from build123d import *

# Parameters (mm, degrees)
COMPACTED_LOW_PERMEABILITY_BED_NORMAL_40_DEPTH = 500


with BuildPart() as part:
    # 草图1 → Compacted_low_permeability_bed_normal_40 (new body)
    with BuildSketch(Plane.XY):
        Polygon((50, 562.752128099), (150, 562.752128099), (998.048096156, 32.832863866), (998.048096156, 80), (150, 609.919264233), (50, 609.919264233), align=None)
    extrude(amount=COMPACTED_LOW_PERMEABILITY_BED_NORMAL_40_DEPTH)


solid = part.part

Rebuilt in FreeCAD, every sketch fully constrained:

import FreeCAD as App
import Part
import Sketcher

V = App.Vector
Q = App.Units.Quantity

doc = App.newDocument("Part")
body = doc.addObject("PartDesign::Body", "Body")

# Sketch on XY plane
sketch1 = doc.addObject("Sketcher::SketchObject", "Sketch")
body.addObject(sketch1)
sketch1.AttachmentSupport = (doc.XY_Plane, [""])
sketch1.MapMode = "FlatFace"
sketch1.addGeometry([
    Part.LineSegment(V(50, 563, 0), V(150, 563, 0)),  # 0
    Part.LineSegment(V(150, 563, 0), V(998, 33, 0)),  # 1
    Part.LineSegment(V(998, 33, 0), V(998, 80, 0)),  # 2
    Part.LineSegment(V(998, 80, 0), V(150, 610, 0)),  # 3
    Part.LineSegment(V(150, 610, 0), V(50, 610, 0)),  # 4
    Part.LineSegment(V(50, 610, 0), V(50, 563, 0)),  # 5
], False)
sketch1.addConstraint([
    Sketcher.Constraint("Coincident", 0, 2, 1, 1),
    Sketcher.Constraint("Coincident", 1, 2, 2, 1),
    Sketcher.Constraint("Coincident", 2, 2, 3, 1),
    Sketcher.Constraint("Coincident", 3, 2, 4, 1),
    Sketcher.Constraint("Coincident", 4, 2, 5, 1),
    Sketcher.Constraint("Coincident", 5, 2, 0, 1),
    Sketcher.Constraint("Horizontal", 0),
    Sketcher.Constraint("Vertical", 2),
    Sketcher.Constraint("Horizontal", 4),
    Sketcher.Constraint("Vertical", 5),
    Sketcher.Constraint("Parallel", 1, 3),
    Sketcher.Constraint("Vertical", 0, 2, 3, 2),
    Sketcher.Constraint("DistanceX", 0, 1, 0, 2, Q("100 mm")),
    Sketcher.Constraint("Angle", 1, Q("-32 deg")),
    Sketcher.Constraint("Distance", 1, Q("1000 mm")),
    Sketcher.Constraint("DistanceX", -1, 1, 0, 2, Q("150 mm")),
    Sketcher.Constraint("DistanceY", -1, 1, 2, 2, Q("80 mm")),
    Sketcher.Constraint("DistanceY", 1, 2, 3, 2, Q("577.0864 mm")),
])
pad1 = doc.addObject("PartDesign::Pad", "Pad")
body.addObject(pad1)
pad1.Profile = sketch1
pad1.Length = 500

doc.recompute()
